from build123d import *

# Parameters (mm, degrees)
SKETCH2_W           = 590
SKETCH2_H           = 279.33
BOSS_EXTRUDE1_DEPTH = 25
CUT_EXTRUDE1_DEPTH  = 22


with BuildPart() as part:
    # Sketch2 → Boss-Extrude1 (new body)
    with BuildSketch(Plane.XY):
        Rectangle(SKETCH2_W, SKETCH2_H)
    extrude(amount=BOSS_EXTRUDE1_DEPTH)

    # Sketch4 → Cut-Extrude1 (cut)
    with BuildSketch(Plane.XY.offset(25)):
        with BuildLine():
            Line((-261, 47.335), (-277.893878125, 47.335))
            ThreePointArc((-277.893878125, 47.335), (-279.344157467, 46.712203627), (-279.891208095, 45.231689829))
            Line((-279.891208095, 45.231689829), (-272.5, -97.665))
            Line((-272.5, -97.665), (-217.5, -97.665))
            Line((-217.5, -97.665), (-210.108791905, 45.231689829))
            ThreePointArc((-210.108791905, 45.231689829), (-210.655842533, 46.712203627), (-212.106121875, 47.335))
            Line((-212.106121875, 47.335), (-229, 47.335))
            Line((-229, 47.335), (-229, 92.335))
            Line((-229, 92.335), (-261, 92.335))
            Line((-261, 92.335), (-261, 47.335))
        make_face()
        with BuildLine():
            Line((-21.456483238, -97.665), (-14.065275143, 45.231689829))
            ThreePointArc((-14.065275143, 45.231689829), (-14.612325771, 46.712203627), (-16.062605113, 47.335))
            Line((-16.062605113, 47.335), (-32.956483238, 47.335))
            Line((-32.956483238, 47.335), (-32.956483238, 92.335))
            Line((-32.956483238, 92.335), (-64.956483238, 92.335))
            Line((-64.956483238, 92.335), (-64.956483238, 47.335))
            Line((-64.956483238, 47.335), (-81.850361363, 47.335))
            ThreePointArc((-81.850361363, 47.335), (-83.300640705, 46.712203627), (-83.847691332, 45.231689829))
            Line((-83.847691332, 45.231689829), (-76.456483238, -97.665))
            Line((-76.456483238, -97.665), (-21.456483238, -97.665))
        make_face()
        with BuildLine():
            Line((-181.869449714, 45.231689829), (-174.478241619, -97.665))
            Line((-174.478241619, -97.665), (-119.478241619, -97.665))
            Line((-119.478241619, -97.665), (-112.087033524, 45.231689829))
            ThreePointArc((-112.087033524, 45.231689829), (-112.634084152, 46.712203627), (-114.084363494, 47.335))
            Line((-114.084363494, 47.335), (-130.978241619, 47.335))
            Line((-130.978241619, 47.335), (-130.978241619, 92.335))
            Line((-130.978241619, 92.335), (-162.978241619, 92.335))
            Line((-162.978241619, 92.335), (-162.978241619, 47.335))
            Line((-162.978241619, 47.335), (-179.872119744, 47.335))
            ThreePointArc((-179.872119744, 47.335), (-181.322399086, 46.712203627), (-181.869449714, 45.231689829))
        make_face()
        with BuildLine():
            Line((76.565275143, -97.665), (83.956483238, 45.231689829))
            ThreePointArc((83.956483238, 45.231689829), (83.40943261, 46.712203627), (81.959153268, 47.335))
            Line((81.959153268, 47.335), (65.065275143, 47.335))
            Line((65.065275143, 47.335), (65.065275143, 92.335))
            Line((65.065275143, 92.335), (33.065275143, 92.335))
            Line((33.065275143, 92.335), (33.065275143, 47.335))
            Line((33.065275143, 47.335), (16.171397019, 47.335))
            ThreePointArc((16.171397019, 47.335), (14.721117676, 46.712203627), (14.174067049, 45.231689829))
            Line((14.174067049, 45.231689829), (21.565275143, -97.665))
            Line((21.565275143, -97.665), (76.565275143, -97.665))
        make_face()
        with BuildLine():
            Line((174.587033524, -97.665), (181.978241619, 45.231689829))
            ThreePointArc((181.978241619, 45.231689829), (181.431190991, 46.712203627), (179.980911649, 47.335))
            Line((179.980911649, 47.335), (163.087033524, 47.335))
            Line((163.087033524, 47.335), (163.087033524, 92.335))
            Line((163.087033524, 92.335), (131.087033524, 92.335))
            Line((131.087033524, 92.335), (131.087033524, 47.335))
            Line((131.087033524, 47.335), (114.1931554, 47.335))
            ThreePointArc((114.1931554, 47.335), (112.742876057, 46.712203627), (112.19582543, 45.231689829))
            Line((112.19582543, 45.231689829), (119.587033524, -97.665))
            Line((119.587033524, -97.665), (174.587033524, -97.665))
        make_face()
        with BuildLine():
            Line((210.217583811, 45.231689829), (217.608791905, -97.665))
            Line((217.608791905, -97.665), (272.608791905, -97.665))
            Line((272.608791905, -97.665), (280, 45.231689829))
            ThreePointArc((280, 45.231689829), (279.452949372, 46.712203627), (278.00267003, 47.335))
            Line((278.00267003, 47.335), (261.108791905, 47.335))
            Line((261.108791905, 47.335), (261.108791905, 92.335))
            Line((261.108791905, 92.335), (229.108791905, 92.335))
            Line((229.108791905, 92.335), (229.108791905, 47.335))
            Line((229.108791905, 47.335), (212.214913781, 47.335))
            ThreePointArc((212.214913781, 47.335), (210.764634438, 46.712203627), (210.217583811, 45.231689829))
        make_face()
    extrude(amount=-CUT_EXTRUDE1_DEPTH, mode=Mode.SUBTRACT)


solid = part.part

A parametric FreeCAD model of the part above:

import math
import FreeCAD as App
import Part
import Sketcher
from FreeCAD import Vector

doc = App.newDocument("Part")
body = doc.addObject("PartDesign::Body", "Body")

# Sketch on XY plane
sketch1 = doc.addObject("Sketcher::SketchObject", "Sketch")
body.addObject(sketch1)
sketch1.AttachmentSupport = (doc.XY_Plane, [""])
sketch1.MapMode = "FlatFace"
sketch1.addGeometry(Part.LineSegment(Vector(-295, 140, 0), Vector(-295, -140, 0)), False)
sketch1.addGeometry(Part.LineSegment(Vector(-295, -140, 0), Vector(295, -140, 0)), False)
sketch1.addGeometry(Part.LineSegment(Vector(295, -140, 0), Vector(295, 140, 0)), False)
sketch1.addGeometry(Part.LineSegment(Vector(295, 140, 0), Vector(-295, 140, 0)), False)
sketch1.addConstraint(Sketcher.Constraint("Coincident", 0, 2, 1, 1))
sketch1.addConstraint(Sketcher.Constraint("Coincident", 1, 2, 2, 1))
sketch1.addConstraint(Sketcher.Constraint("Coincident", 2, 2, 3, 1))
sketch1.addConstraint(Sketcher.Constraint("Coincident", 3, 2, 0, 1))
sketch1.addConstraint(Sketcher.Constraint("Vertical", 0))
sketch1.addConstraint(Sketcher.Constraint("Horizontal", 1))
sketch1.addConstraint(Sketcher.Constraint("Vertical", 2))
sketch1.addConstraint(Sketcher.Constraint("Horizontal", 3))
sketch1.addConstraint(Sketcher.Constraint("Symmetric", 0, 2, 2, 2, -1, 1))
sketch1.addConstraint(Sketcher.Constraint("DistanceX", 1, 1, 1, 2, 590.0))
sketch1.addConstraint(Sketcher.Constraint("DistanceY", 0, 2, 0, 1, 279.33))
pad1 = doc.addObject("PartDesign::Pad", "Pad")
body.addObject(pad1)
pad1.Profile = sketch1
pad1.Length = 25

# Sketch on XY plane
sketch2 = doc.addObject("Sketcher::SketchObject", "Sketch001")
body.addObject(sketch2)
sketch2.AttachmentSupport = (doc.XY_Plane, [""])
sketch2.MapMode = "FlatFace"
sketch2.AttachmentOffset = App.Placement(Vector(0, 0, 25), App.Rotation())
sketch2.addGeometry(Part.LineSegment(Vector(-261, 47.3, 0), Vector(-277.9, 47.3, 0)), False)
sketch2.addGeometry(Part.ArcOfCircle(Part.Circle(Vector(-277.9, 45.3, 0), Vector(0, 0, 1), 2), math.radians(90), math.radians(183)), False)
sketch2.addGeometry(Part.LineSegment(Vector(-279.9, 45.2, 0), Vector(-272.5, -97.7, 0)), False)
sketch2.addGeometry(Part.LineSegment(Vector(-272.5, -97.7, 0), Vector(-217.5, -97.7, 0)), False)
sketch2.addGeometry(Part.LineSegment(Vector(-217.5, -97.7, 0), Vector(-210.1, 45.2, 0)), False)
sketch2.addGeometry(Part.ArcOfCircle(Part.Circle(Vector(-212.1, 45.3, 0), Vector(0, 0, 1), 2), math.radians(-3), math.radians(90)), False)
sketch2.addGeometry(Part.LineSegment(Vector(-212.1, 47.3, 0), Vector(-229, 47.3, 0)), False)
sketch2.addGeometry(Part.LineSegment(Vector(-229, 47.3, 0), Vector(-229, 92.3, 0)), False)
sketch2.addGeometry(Part.LineSegment(Vector(-229, 92.3, 0), Vector(-261, 92.3, 0)), False)
sketch2.addGeometry(Part.LineSegment(Vector(-261, 92.3, 0), Vector(-261, 47.3, 0)), False)
sketch2.addGeometry(Part.LineSegment(Vector(-21.5, -97.7, 0), Vector(-14.1, 45.2, 0)), False)
sketch2.addGeometry(Part.ArcOfCircle(Part.Circle(Vector(-16.1, 45.3, 0), Vector(0, 0, 1), 2), math.radians(-3), math.radians(90)), False)
sketch2.addGeometry(Part.LineSegment(Vector(-16.1, 47.3, 0), Vector(-33, 47.3, 0)), False)
sketch2.addGeometry(Part.LineSegment(Vector(-33, 47.3, 0), Vector(-33, 92.3, 0)), False)
sketch2.addGeometry(Part.LineSegment(Vector(-33, 92.3, 0), Vector(-65, 92.3, 0)), False)
sketch2.addGeometry(Part.LineSegment(Vector(-65, 92.3, 0), Vector(-65, 47.3, 0)), False)
sketch2.addGeometry(Part.LineSegment(Vector(-65, 47.3, 0), Vector(-81.9, 47.3, 0)), False)
sketch2.addGeometry(Part.ArcOfCircle(Part.Circle(Vector(-81.9, 45.3, 0), Vector(0, 0, 1), 2), math.radians(90), math.radians(183)), False)
sketch2.addGeometry(Part.LineSegment(Vector(-83.8, 45.2, 0), Vector(-76.5, -97.7, 0)), False)
sketch2.addGeometry(Part.LineSegment(Vector(-76.5, -97.7, 0), Vector(-21.5, -97.7, 0)), False)
sketch2.addGeometry(Part.LineSegment(Vector(-181.9, 45.2, 0), Vector(-174.5, -97.7, 0)), False)
sketch2.addGeometry(Part.LineSegment(Vector(-174.5, -97.7, 0), Vector(-119.5, -97.7, 0)), False)
sketch2.addGeometry(Part.LineSegment(Vector(-119.5, -97.7, 0), Vector(-112.1, 45.2, 0)), False)
sketch2.addGeometry(Part.ArcOfCircle(Part.Circle(Vector(-114.1, 45.3, 0), Vector(0, 0, 1), 2), math.radians(-3), math.radians(90)), False)
sketch2.addGeometry(Part.LineSegment(Vector(-114.1, 47.3, 0), Vector(-131, 47.3, 0)), False)
sketch2.addGeometry(Part.LineSegment(Vector(-131, 47.3, 0), Vector(-131, 92.3, 0)), False)
sketch2.addGeometry(Part.LineSegment(Vector(-131, 92.3, 0), Vector(-163, 92.3, 0)), False)
sketch2.addGeometry(Part.LineSegment(Vector(-163, 92.3, 0), Vector(-163, 47.3, 0)), False)
sketch2.addGeometry(Part.LineSegment(Vector(-163, 47.3, 0), Vector(-179.9, 47.3, 0)), False)
sketch2.addGeometry(Part.ArcOfCircle(Part.Circle(Vector(-179.9, 45.3, 0), Vector(0, 0, 1), 2), math.radians(90), math.radians(183)), False)
sketch2.addGeometry(Part.LineSegment(Vector(76.6, -97.7, 0), Vector(84, 45.2, 0)), False)
sketch2.addGeometry(Part.ArcOfCircle(Part.Circle(Vector(82, 45.3, 0), Vector(0, 0, 1), 2), math.radians(-3), math.radians(90)), False)
sketch2.addGeometry(Part.LineSegment(Vector(82, 47.3, 0), Vector(65.1, 47.3, 0)), False)
sketch2.addGeometry(Part.LineSegment(Vector(65.1, 47.3, 0), Vector(65.1, 92.3, 0)), False)
sketch2.addGeometry(Part.LineSegment(Vector(65.1, 92.3, 0), Vector(33.1, 92.3, 0)), False)
sketch2.addGeometry(Part.LineSegment(Vector(33.1, 92.3, 0), Vector(33.1, 47.3, 0)), False)
sketch2.addGeometry(Part.LineSegment(Vector(33.1, 47.3, 0), Vector(16.2, 47.3, 0)), False)
sketch2.addGeometry(Part.ArcOfCircle(Part.Circle(Vector(16.2, 45.3, 0), Vector(0, 0, 1), 2), math.radians(90), math.radians(183)), False)
sketch2.addGeometry(Part.LineSegment(Vector(14.2, 45.2, 0), Vector(21.6, -97.7, 0)), False)
sketch2.addGeometry(Part.LineSegment(Vector(21.6, -97.7, 0), Vector(76.6, -97.7, 0)), False)
sketch2.addGeometry(Part.LineSegment(Vector(174.6, -97.7, 0), Vector(182, 45.2, 0)), False)
sketch2.addGeometry(Part.ArcOfCircle(Part.Circle(Vector(180, 45.3, 0), Vector(0, 0, 1), 2), math.radians(-3), math.radians(90)), False)
sketch2.addGeometry(Part.LineSegment(Vector(180, 47.3, 0), Vector(163.1, 47.3, 0)), False)
sketch2.addGeometry(Part.LineSegment(Vector(163.1, 47.3, 0), Vector(163.1, 92.3, 0)), False)
sketch2.addGeometry(Part.LineSegment(Vector(163.1, 92.3, 0), Vector(131.1, 92.3, 0)), False)
sketch2.addGeometry(Part.LineSegment(Vector(131.1, 92.3, 0), Vector(131.1, 47.3, 0)), False)
sketch2.addGeometry(Part.LineSegment(Vector(131.1, 47.3, 0), Vector(114.2, 47.3, 0)), False)
sketch2.addGeometry(Part.ArcOfCircle(Part.Circle(Vector(114.2, 45.3, 0), Vector(0, 0, 1), 2), math.radians(90), math.radians(183)), False)
sketch2.addGeometry(Part.LineSegment(Vector(112.2, 45.2, 0), Vector(119.6, -97.7, 0)), False)
sketch2.addGeometry(Part.LineSegment(Vector(119.6, -97.7, 0), Vector(174.6, -97.7, 0)), False)
sketch2.addGeometry(Part.LineSegment(Vector(210.2, 45.2, 0), Vector(217.6, -97.7, 0)), False)
sketch2.addGeometry(Part.LineSegment(Vector(217.6, -97.7, 0), Vector(272.6, -97.7, 0)), False)
sketch2.addGeometry(Part.LineSegment(Vector(272.6, -97.7, 0), Vector(280, 45.2, 0)), False)
sketch2.addGeometry(Part.ArcOfCircle(Part.Circle(Vector(278, 45.3, 0), Vector(0, 0, 1), 2), math.radians(-3), math.radians(90)), False)
sketch2.addGeometry(Part.LineSegment(Vector(278, 47.3, 0), Vector(261.1, 47.3, 0)), False)
sketch2.addGeometry(Part.LineSegment(Vector(261.1, 47.3, 0), Vector(261.1, 92.3, 0)), False)
sketch2.addGeometry(Part.LineSegment(Vector(261.1, 92.3, 0), Vector(229.1, 92.3, 0)), False)
sketch2.addGeometry(Part.LineSegment(Vector(229.1, 92.3, 0), Vector(229.1, 47.3, 0)), False)
sketch2.addGeometry(Part.LineSegment(Vector(229.1, 47.3, 0), Vector(212.2, 47.3, 0)), False)
sketch2.addGeometry(Part.ArcOfCircle(Part.Circle(Vector(212.2, 45.3, 0), Vector(0, 0, 1), 2), math.radians(90), math.radians(183)), False)
sketch2.addConstraint(Sketcher.Constraint("Tangent", 0, 2, 1, 1))
sketch2.addConstraint(Sketcher.Constraint("Tangent", 1, 2, 2, 1))
sketch2.addConstraint(Sketcher.Constraint("Coincident", 2, 2, 3, 1))
sketch2.addConstraint(Sketcher.Constraint("Coincident", 3, 2, 4, 1))
sketch2.addConstraint(Sketcher.Constraint("Tangent", 4, 2, 5, 1))
sketch2.addConstraint(Sketcher.Constraint("Tangent", 5, 2, 6, 1))
sketch2.addConstraint(Sketcher.Constraint("Coincident", 6, 2, 7, 1))
sketch2.addConstraint(Sketcher.Constraint("Coincident", 7, 2, 8, 1))
sketch2.addConstraint(Sketcher.Constraint("Coincident", 8, 2, 9, 1))
sketch2.addConstraint(Sketcher.Constraint("Coincident", 9, 2, 0, 1))
sketch2.addConstraint(Sketcher.Constraint("Tangent", 10, 2, 11, 1))
sketch2.addConstraint(Sketcher.Constraint("Tangent", 11, 2, 12, 1))
sketch2.addConstraint(Sketcher.Constraint("Coincident", 12, 2, 13, 1))
sketch2.addConstraint(Sketcher.Constraint("Coincident", 13, 2, 14, 1))
sketch2.addConstraint(Sketcher.Constraint("Coincident", 14, 2, 15, 1))
sketch2.addConstraint(Sketcher.Constraint("Coincident", 15, 2, 16, 1))
sketch2.addConstraint(Sketcher.Constraint("Tangent", 16, 2, 17, 1))
sketch2.addConstraint(Sketcher.Constraint("Tangent", 17, 2, 18, 1))
sketch2.addConstraint(Sketcher.Constraint("Coincident", 18, 2, 19, 1))
sketch2.addConstraint(Sketcher.Constraint("Coincident", 19, 2, 10, 1))
sketch2.addConstraint(Sketcher.Constraint("Coincident", 20, 2, 21, 1))
sketch2.addConstraint(Sketcher.Constraint("Coincident", 21, 2, 22, 1))
sketch2.addConstraint(Sketcher.Constraint("Tangent", 22, 2, 23, 1))
sketch2.addConstraint(Sketcher.Constraint("Tangent", 23, 2, 24, 1))
sketch2.addConstraint(Sketcher.Constraint("Coincident", 24, 2, 25, 1))
sketch2.addConstraint(Sketcher.Constraint("Coincident", 25, 2, 26, 1))
sketch2.addConstraint(Sketcher.Constraint("Coincident", 26, 2, 27, 1))
sketch2.addConstraint(Sketcher.Constraint("Coincident", 27, 2, 28, 1))
sketch2.addConstraint(Sketcher.Constraint("Tangent", 28, 2, 29, 1))
sketch2.addConstraint(Sketcher.Constraint("Tangent", 29, 2, 20, 1))
sketch2.addConstraint(Sketcher.Constraint("Tangent", 30, 2, 31, 1))
sketch2.addConstraint(Sketcher.Constraint("Tangent", 31, 2, 32, 1))
sketch2.addConstraint(Sketcher.Constraint("Coincident", 32, 2, 33, 1))
sketch2.addConstraint(Sketcher.Constraint("Coincident", 33, 2, 34, 1))
sketch2.addConstraint(Sketcher.Constraint("Coincident", 34, 2, 35, 1))
sketch2.addConstraint(Sketcher.Constraint("Coincident", 35, 2, 36, 1))
sketch2.addConstraint(Sketcher.Constraint("Tangent", 36, 2, 37, 1))
sketch2.addConstraint(Sketcher.Constraint("Tangent", 37, 2, 38, 1))
sketch2.addConstraint(Sketcher.Constraint("Coincident", 38, 2, 39, 1))
sketch2.addConstraint(Sketcher.Constraint("Coincident", 39, 2, 30, 1))
sketch2.addConstraint(Sketcher.Constraint("Tangent", 40, 2, 41, 1))
sketch2.addConstraint(Sketcher.Constraint("Tangent", 41, 2, 42, 1))
sketch2.addConstraint(Sketcher.Constraint("Coincident", 42, 2, 43, 1))
sketch2.addConstraint(Sketcher.Constraint("Coincident", 43, 2, 44, 1))
sketch2.addConstraint(Sketcher.Constraint("Coincident", 44, 2, 45, 1))
sketch2.addConstraint(Sketcher.Constraint("Coincident", 45, 2, 46, 1))
sketch2.addConstraint(Sketcher.Constraint("Tangent", 46, 2, 47, 1))
sketch2.addConstraint(Sketcher.Constraint("Tangent", 47, 2, 48, 1))
sketch2.addConstraint(Sketcher.Constraint("Coincident", 48, 2, 49, 1))
sketch2.addConstraint(Sketcher.Constraint("Coincident", 49, 2, 40, 1))
sketch2.addConstraint(Sketcher.Constraint("Coincident", 50, 2, 51, 1))
sketch2.addConstraint(Sketcher.Constraint("Coincident", 51, 2, 52, 1))
sketch2.addConstraint(Sketcher.Constraint("Tangent", 52, 2, 53, 1))
sketch2.addConstraint(Sketcher.Constraint("Tangent", 53, 2, 54, 1))
sketch2.addConstraint(Sketcher.Constraint("Coincident", 54, 2, 55, 1))
sketch2.addConstraint(Sketcher.Constraint("Coincident", 55, 2, 56, 1))
sketch2.addConstraint(Sketcher.Constraint("Coincident", 56, 2, 57, 1))
sketch2.addConstraint(Sketcher.Constraint("Coincident", 57, 2, 58, 1))
sketch2.addConstraint(Sketcher.Constraint("Tangent", 58, 2, 59, 1))
sketch2.addConstraint(Sketcher.Constraint("Tangent", 59, 2, 50, 1))
sketch2.addConstraint(Sketcher.Constraint("Horizontal", 0))
sketch2.addConstraint(Sketcher.Constraint("Horizontal", 3))
sketch2.addConstraint(Sketcher.Constraint("Horizontal", 6))
sketch2.addConstraint(Sketcher.Constraint("Vertical", 7))
sketch2.addConstraint(Sketcher.Constraint("Horizontal", 8))
sketch2.addConstraint(Sketcher.Constraint("Vertical", 9))
sketch2.addConstraint(Sketcher.Constraint("Horizontal", 12))
sketch2.addConstraint(Sketcher.Constraint("Vertical", 13))
sketch2.addConstraint(Sketcher.Constraint("Horizontal", 14))
sketch2.addConstraint(Sketcher.Constraint("Vertical", 15))
sketch2.addConstraint(Sketcher.Constraint("Horizontal", 16))
sketch2.addConstraint(Sketcher.Constraint("Horizontal", 19))
sketch2.addConstraint(Sketcher.Constraint("Horizontal", 21))
sketch2.addConstraint(Sketcher.Constraint("Horizontal", 24))
sketch2.addConstraint(Sketcher.Constraint("Vertical", 25))
sketch2.addConstraint(Sketcher.Constraint("Horizontal", 26))
sketch2.addConstraint(Sketcher.Constraint("Vertical", 27))
sketch2.addConstraint(Sketcher.Constraint("Horizontal", 28))
sketch2.addConstraint(Sketcher.Constraint("Horizontal", 32))
sketch2.addConstraint(Sketcher.Constraint("Vertical", 33))
sketch2.addConstraint(Sketcher.Constraint("Horizontal", 34))
sketch2.addConstraint(Sketcher.Constraint("Vertical", 35))
sketch2.addConstraint(Sketcher.Constraint("Horizontal", 36))
sketch2.addConstraint(Sketcher.Constraint("Horizontal", 39))
sketch2.addConstraint(Sketcher.Constraint("Horizontal", 42))
sketch2.addConstraint(Sketcher.Constraint("Vertical", 43))
sketch2.addConstraint(Sketcher.Constraint("Horizontal", 44))
sketch2.addConstraint(Sketcher.Constraint("Vertical", 45))
sketch2.addConstraint(Sketcher.Constraint("Horizontal", 46))
sketch2.addConstraint(Sketcher.Constraint("Horizontal", 49))
sketch2.addConstraint(Sketcher.Constraint("Horizontal", 51))
sketch2.addConstraint(Sketcher.Constraint("Horizontal", 54))
sketch2.addConstraint(Sketcher.Constraint("Vertical", 55))
sketch2.addConstraint(Sketcher.Constraint("Horizontal", 56))
sketch2.addConstraint(Sketcher.Constraint("Vertical", 57))
sketch2.addConstraint(Sketcher.Constraint("Horizontal", 58))
sketch2.addConstraint(Sketcher.Constraint("Equal", 1, 5))
sketch2.addConstraint(Sketcher.Constraint("Equal", 5, 11))
sketch2.addConstraint(Sketcher.Constraint("Equal", 11, 17))
sketch2.addConstraint(Sketcher.Constraint("Equal", 17, 23))
sketch2.addConstraint(Sketcher.Constraint("Equal", 23, 29))
sketch2.addConstraint(Sketcher.Constraint("Equal", 29, 31))
sketch2.addConstraint(Sketcher.Constraint("Equal", 31, 37))
sketch2.addConstraint(Sketcher.Constraint("Equal", 37, 41))
sketch2.addConstraint(Sketcher.Constraint("Equal", 41, 47))
sketch2.addConstraint(Sketcher.Constraint("Equal", 47, 53))
sketch2.addConstraint(Sketcher.Constraint("Equal", 53, 59))
sketch2.addConstraint(Sketcher.Constraint("Parallel", 4, 10))
sketch2.addConstraint(Sketcher.Constraint("Parallel", 2, 18))
sketch2.addConstraint(Sketcher.Constraint("Parallel", 18, 20))
sketch2.addConstraint(Sketcher.Constraint("Parallel", 10, 22))
sketch2.addConstraint(Sketcher.Constraint("Parallel", 22, 30))
sketch2.addConstraint(Sketcher.Constraint("Parallel", 20, 38))
sketch2.addConstraint(Sketcher.Constraint("Parallel", 30, 40))
sketch2.addConstraint(Sketcher.Constraint("Parallel", 38, 48))
sketch2.addConstraint(Sketcher.Constraint("Parallel", 48, 50))
sketch2.addConstraint(Sketcher.Constraint("Parallel", 40, 52))
sketch2.addConstraint(Sketcher.Constraint("Horizontal", 1, 3, 5, 3))
sketch2.addConstraint(Sketcher.Constraint("Horizontal", 5, 3, 11, 3))
sketch2.addConstraint(Sketcher.Constraint("Horizontal", 11, 3, 17, 3))
sketch2.addConstraint(Sketcher.Constraint("Horizontal", 17, 3, 23, 3))
sketch2.addConstraint(Sketcher.Constraint("Horizontal", 23, 3, 29, 3))
sketch2.addConstraint(Sketcher.Constraint("Horizontal", 29, 3, 31, 3))
sketch2.addConstraint(Sketcher.Constraint("Horizontal", 31, 3, 37, 3))
sketch2.addConstraint(Sketcher.Constraint("Horizontal", 37, 3, 41, 3))
sketch2.addConstraint(Sketcher.Constraint("Horizontal", 41, 3, 47, 3))
sketch2.addConstraint(Sketcher.Constraint("Horizontal", 47, 3, 53, 3))
sketch2.addConstraint(Sketcher.Constraint("Horizontal", 53, 3, 59, 3))
sketch2.addConstraint(Sketcher.Constraint("Horizontal", 1, 2, 4, 2))
sketch2.addConstraint(Sketcher.Constraint("Horizontal", 8, 2, 13, 2))
sketch2.addConstraint(Sketcher.Constraint("Horizontal", 3, 2, 18, 2))
sketch2.addConstraint(Sketcher.Constraint("Horizontal", 19, 2, 20, 2))
sketch2.addConstraint(Sketcher.Constraint("Horizontal", 14, 2, 25, 2))
sketch2.addConstraint(Sketcher.Constraint("Horizontal", 26, 2, 33, 2))
sketch2.addConstraint(Sketcher.Constraint("Horizontal", 21, 2, 38, 2))
sketch2.addConstraint(Sketcher.Constraint("Horizontal", 34, 2, 43, 2))
sketch2.addConstraint(Sketcher.Constraint("Horizontal", 39, 2, 48, 2))
sketch2.addConstraint(Sketcher.Constraint("Horizontal", 49, 2, 50, 2))
sketch2.addConstraint(Sketcher.Constraint("Horizontal", 44, 2, 55, 2))
sketch2.addConstraint(Sketcher.Constraint("Equal", 0, 6))
sketch2.addConstraint(Sketcher.Constraint("Equal", 6, 12))
sketch2.addConstraint(Sketcher.Constraint("Equal", 8, 14))
sketch2.addConstraint(Sketcher.Constraint("Equal", 12, 16))
sketch2.addConstraint(Sketcher.Constraint("Equal", 19, 21))
sketch2.addConstraint(Sketcher.Constraint("Equal", 16, 24))
sketch2.addConstraint(Sketcher.Constraint("Equal", 14, 26))
sketch2.addConstraint(Sketcher.Constraint("Equal", 28, 32))
sketch2.addConstraint(Sketcher.Constraint("Equal", 26, 34))
sketch2.addConstraint(Sketcher.Constraint("Equal", 32, 36))
sketch2.addConstraint(Sketcher.Constraint("Equal", 36, 42))
sketch2.addConstraint(Sketcher.Constraint("Equal", 34, 44))
sketch2.addConstraint(Sketcher.Constraint("Equal", 42, 46))
sketch2.addConstraint(Sketcher.Constraint("Equal", 49, 51))
sketch2.addConstraint(Sketcher.Constraint("Equal", 46, 54))
sketch2.addConstraint(Sketcher.Constraint("Equal", 44, 56))
sketch2.addConstraint(Sketcher.Constraint("Radius", 1, 2.0))
sketch2.addConstraint(Sketcher.Constraint("DistanceX", 3, 1, 3, 2, 55.0))
sketch2.addConstraint(Sketcher.Constraint("DistanceX", 8, 2, 8, 1, 32.0))
sketch2.addConstraint(Sketcher.Constraint("DistanceY", 7, 1, 7, 2, 45.0))
sketch2.addConstraint(Sketcher.Constraint("DistanceX", 6, 2, -1, 1, 229.0))
sketch2.addConstraint(Sketcher.Constraint("DistanceX", -1, 1, 52, 2, 280.0))
sketch2.addConstraint(Sketcher.Constraint("DistanceY", -1, 1, 1, 3, 45.335))
sketch2.addConstraint(Sketcher.Constraint("DistanceY", 2, 2, -1, 1, 97.665))
sketch2.addConstraint(Sketcher.Constraint("DistanceX", 0, 2, 0, 1, 16.893878))
sketch2.addConstraint(Sketcher.Constraint("DistanceX", 17, 3, -1, 1, 81.850361))
sketch2.addConstraint(Sketcher.Constraint("DistanceX", 29, 3, -1, 1, 179.87212))
sketch2.addConstraint(Sketcher.Constraint("DistanceX", -1, 1, 41, 3, 179.980912))
sketch2.addConstraint(Sketcher.Constraint("DistanceX", -1, 1, 31, 3, 81.959153))
pocket1 = doc.addObject("PartDesign::Pocket", "Pocket")
body.addObject(pocket1)
pocket1.Profile = sketch2
pocket1.Length = 22

doc.recompute()
